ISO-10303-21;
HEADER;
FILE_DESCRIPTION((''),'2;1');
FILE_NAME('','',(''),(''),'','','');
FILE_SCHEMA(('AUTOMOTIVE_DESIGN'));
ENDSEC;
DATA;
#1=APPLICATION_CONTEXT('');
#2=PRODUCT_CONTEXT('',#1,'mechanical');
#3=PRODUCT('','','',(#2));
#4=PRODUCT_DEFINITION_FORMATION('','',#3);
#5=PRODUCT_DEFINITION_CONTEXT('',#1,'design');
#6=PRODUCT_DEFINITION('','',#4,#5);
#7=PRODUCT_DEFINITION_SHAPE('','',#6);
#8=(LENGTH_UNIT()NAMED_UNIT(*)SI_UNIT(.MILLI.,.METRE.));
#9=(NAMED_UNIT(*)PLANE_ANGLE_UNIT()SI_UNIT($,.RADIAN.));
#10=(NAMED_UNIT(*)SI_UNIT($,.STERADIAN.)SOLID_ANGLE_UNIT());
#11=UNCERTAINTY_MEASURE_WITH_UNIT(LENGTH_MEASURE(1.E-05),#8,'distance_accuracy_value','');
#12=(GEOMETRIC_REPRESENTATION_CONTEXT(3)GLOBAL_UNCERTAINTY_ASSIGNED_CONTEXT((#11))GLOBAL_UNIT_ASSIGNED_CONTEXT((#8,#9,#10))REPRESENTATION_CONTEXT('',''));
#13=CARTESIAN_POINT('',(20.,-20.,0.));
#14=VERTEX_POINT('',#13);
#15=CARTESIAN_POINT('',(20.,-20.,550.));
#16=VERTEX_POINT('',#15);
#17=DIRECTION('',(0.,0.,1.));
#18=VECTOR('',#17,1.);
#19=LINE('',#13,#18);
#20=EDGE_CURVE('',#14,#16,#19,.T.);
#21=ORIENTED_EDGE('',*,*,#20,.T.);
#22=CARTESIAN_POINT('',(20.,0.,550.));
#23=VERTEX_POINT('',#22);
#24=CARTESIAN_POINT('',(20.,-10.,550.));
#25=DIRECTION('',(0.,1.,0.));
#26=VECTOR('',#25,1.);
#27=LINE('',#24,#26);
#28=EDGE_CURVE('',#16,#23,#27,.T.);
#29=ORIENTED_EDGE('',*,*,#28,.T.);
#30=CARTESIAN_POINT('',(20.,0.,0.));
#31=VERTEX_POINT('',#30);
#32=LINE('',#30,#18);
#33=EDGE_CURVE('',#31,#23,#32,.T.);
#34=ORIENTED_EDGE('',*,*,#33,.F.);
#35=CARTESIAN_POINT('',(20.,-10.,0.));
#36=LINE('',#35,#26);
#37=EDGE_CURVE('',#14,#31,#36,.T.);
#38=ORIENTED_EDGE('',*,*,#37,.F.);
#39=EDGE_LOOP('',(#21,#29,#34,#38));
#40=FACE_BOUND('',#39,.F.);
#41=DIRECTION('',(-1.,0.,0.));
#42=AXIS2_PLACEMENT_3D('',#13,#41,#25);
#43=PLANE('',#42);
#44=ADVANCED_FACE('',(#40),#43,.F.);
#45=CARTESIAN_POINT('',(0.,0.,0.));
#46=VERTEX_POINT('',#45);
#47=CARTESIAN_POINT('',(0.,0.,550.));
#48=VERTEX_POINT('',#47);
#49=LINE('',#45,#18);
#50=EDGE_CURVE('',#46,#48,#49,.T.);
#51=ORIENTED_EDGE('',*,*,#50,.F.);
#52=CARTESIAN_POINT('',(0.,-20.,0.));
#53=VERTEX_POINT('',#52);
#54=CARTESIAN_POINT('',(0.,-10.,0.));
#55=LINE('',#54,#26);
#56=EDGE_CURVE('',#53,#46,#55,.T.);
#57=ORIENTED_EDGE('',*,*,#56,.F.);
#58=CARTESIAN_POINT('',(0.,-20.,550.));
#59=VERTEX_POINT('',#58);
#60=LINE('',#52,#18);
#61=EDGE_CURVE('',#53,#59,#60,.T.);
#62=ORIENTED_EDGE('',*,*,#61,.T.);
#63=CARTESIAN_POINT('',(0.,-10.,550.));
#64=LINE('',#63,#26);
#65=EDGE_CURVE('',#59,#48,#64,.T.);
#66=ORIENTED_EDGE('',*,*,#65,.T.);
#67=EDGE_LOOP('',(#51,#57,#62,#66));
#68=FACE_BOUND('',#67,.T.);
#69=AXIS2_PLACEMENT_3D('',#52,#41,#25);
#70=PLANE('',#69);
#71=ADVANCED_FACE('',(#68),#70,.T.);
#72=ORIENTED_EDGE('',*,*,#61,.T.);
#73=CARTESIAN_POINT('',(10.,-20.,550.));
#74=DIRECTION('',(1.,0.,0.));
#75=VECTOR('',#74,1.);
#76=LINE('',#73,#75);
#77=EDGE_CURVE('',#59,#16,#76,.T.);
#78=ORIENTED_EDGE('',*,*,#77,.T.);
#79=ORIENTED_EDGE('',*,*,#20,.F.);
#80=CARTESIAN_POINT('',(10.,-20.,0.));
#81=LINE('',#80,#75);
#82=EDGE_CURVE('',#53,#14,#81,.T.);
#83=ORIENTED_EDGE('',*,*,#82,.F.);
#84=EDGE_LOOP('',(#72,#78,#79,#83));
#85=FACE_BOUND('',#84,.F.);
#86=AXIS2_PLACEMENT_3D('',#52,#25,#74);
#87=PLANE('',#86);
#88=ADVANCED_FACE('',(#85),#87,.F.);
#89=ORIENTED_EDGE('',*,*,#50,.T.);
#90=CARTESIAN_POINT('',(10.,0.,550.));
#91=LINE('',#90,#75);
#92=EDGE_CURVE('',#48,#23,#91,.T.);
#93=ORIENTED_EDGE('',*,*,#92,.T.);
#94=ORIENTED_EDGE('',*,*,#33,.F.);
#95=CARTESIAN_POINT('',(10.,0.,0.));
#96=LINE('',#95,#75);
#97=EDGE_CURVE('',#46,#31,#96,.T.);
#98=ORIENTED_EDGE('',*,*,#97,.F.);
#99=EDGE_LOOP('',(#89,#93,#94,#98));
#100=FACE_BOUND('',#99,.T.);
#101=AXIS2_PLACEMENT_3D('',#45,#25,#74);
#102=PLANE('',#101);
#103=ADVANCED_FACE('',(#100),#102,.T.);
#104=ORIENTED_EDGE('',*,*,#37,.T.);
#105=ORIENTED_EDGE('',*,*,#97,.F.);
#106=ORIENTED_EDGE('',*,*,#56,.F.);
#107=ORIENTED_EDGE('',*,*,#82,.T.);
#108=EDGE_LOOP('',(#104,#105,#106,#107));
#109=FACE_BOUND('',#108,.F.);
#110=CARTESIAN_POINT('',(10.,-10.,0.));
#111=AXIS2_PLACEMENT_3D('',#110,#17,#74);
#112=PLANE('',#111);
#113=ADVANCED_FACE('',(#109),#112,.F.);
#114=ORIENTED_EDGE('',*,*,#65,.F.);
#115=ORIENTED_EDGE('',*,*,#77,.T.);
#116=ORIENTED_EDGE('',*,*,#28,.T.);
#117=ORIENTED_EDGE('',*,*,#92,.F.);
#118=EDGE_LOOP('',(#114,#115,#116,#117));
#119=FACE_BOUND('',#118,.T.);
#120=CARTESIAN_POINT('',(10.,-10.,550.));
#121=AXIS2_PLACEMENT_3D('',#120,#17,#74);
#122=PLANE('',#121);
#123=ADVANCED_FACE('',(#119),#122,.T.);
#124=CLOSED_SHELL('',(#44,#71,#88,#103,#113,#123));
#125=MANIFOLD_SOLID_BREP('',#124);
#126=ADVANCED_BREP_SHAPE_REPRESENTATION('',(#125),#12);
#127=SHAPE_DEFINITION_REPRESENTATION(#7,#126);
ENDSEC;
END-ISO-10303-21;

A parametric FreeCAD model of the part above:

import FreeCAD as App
import Part
import Sketcher

V = App.Vector
Q = App.Units.Quantity


def add_polygon(sketch, points):
    """Adds a closed chain of lines whose ends are joined by coincident constraints."""
    first, n = sketch.GeometryCount, len(points)
    for a, b in zip(points, points[1:] + points[:1]):
        sketch.addGeometry(Part.LineSegment(App.Vector(*a, 0), App.Vector(*b, 0)), False)
    for i in range(n):
        sketch.addConstraint(Sketcher.Constraint("Coincident", first + i, 2, first + (i + 1) % n, 1))

doc = App.newDocument("Part")
params = doc.addObject("Spreadsheet::Sheet", "Params")
for row, (alias, value) in enumerate([
    ("sketch1_width", "20 mm"),
    ("pad1_length", "550 mm"),
], start=1):
    params.set(f"A{row}", alias)
    params.set(f"B{row}", "=" + value)
    params.setAlias(f"B{row}", alias)

body = doc.addObject("PartDesign::Body", "Body")

# Sketch on XY plane
sketch1 = body.newObject("Sketcher::SketchObject", "Sketch")
sketch1.AttachmentSupport = (doc.getObject("XY_Plane"), [""])
sketch1.MapMode = "FlatFace"
add_polygon(sketch1, [(0, 0), (0, -20), (20, -20), (20, 0)])  # lines 0-3
sketch1.addConstraint([
    Sketcher.Constraint("Vertical", 0),
    Sketcher.Constraint("Horizontal", 1),
    Sketcher.Constraint("Vertical", 2),
    Sketcher.Constraint("Horizontal", 3),
    Sketcher.Constraint("Coincident", 3, 2, -1, 1),
    Sketcher.Constraint("Equal", 3, 0),
    Sketcher.Constraint("DistanceX", 1, 1, 1, 2, Q("20 mm")),
])
sketch1.setExpression("Constraints[10]", "Params.sketch1_width")
pad1 = body.newObject("PartDesign::Pad", "Pad")
pad1.Profile = sketch1
pad1.setExpression("Length", "Params.pad1_length")

doc.recompute()
